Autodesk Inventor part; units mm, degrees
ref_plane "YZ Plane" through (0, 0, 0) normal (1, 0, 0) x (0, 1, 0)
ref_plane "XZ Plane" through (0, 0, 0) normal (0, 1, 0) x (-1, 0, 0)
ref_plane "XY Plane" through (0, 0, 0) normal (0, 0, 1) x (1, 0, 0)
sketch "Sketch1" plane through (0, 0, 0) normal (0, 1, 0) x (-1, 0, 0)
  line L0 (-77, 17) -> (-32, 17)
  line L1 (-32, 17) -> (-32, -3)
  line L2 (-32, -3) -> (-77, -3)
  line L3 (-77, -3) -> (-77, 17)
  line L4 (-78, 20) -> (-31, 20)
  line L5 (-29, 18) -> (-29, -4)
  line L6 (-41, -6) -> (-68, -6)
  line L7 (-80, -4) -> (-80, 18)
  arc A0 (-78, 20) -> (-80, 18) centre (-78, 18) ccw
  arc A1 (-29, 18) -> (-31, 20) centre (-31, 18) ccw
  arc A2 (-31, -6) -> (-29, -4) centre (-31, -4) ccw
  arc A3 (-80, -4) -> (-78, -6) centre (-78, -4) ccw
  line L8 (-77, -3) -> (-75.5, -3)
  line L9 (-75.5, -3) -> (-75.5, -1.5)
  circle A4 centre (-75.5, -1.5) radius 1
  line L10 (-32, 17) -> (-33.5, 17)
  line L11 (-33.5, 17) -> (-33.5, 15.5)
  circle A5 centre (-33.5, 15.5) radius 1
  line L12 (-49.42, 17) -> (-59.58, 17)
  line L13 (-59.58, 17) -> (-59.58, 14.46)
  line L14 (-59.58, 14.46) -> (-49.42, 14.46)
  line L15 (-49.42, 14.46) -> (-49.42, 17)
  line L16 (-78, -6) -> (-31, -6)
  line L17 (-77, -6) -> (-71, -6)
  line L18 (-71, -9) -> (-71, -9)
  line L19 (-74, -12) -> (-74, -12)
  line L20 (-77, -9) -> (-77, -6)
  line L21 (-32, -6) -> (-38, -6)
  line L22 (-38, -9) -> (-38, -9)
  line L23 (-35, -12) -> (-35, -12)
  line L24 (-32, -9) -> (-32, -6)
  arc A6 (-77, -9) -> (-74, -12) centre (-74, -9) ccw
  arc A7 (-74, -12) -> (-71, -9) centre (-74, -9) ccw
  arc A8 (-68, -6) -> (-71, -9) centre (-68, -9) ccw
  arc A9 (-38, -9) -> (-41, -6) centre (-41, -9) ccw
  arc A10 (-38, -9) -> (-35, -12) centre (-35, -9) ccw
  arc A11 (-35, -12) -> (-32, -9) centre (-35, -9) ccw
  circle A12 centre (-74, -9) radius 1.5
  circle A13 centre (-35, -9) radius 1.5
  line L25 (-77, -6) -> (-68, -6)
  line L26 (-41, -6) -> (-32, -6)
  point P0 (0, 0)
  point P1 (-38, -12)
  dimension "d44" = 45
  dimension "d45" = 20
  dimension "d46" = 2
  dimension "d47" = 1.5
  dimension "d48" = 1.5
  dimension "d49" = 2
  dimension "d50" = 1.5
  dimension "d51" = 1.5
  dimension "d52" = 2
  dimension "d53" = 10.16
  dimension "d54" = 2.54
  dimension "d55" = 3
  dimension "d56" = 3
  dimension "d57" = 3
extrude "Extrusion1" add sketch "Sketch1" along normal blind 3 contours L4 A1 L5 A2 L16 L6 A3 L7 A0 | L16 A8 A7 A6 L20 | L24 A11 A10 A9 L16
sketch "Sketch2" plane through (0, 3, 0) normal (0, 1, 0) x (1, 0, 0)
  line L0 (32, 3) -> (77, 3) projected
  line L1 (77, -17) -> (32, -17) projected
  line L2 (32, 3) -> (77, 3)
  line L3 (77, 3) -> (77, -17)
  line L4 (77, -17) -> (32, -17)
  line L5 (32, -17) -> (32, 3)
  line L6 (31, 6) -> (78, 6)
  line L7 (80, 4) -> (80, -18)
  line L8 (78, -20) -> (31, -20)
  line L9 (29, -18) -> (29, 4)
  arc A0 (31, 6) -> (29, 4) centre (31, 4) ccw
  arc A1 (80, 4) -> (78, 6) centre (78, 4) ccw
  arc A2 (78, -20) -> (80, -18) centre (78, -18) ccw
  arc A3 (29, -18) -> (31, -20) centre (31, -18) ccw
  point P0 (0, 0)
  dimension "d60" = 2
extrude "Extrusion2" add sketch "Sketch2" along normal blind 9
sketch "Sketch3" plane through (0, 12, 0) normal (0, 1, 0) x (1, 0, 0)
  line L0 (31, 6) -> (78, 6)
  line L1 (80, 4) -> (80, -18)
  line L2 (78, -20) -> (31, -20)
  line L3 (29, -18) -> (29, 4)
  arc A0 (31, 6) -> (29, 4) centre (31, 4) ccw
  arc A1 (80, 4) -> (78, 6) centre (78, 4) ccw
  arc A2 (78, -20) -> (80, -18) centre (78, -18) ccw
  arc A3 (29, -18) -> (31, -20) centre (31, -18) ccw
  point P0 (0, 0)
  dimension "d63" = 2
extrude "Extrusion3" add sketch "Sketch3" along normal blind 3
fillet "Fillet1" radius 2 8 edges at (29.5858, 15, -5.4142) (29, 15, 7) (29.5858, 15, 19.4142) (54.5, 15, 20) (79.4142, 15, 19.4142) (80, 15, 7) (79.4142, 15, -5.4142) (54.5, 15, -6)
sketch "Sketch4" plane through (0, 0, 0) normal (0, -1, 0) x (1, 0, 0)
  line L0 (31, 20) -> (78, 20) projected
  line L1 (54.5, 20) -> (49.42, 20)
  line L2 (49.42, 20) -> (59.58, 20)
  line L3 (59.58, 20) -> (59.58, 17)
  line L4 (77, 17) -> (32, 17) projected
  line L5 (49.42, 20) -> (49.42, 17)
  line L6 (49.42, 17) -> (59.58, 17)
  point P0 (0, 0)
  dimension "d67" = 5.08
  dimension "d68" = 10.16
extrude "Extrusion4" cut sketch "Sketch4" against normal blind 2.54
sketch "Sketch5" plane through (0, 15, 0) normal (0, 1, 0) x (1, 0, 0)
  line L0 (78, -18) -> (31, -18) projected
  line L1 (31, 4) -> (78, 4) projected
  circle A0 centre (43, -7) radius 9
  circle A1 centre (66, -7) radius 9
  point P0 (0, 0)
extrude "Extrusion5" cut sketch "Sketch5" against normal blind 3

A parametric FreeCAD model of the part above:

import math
import FreeCAD as App
import Part
import Sketcher

V = App.Vector
Q = App.Units.Quantity


def edges_at(feature, points):
    """Names of the edges that pass closest to the given points."""
    edges = feature.Shape.Edges
    near = lambda p: min(range(len(edges)), key=lambda i: edges[i].distToShape(Part.Vertex(*p))[0])
    return sorted({f"Edge{near(p) + 1}" for p in points})

doc = App.newDocument("Part")
body = doc.addObject("PartDesign::Body", "Body")

sketch1 = doc.addObject("Sketcher::SketchObject", "Sketch")
body.addObject(sketch1)
sketch1.AttachmentSupport = (doc.XZ_Plane, [""])
sketch1.MapMode = "FlatFace"
sketch1.addGeometry([
    Part.LineSegment(V(31, 20, 0), V(78, 20, 0)),
    Part.ArcOfCircle(Part.Circle(V(78, 18, 0), V(0, 0, 1), 2), math.radians(0), math.radians(90)),
    Part.LineSegment(V(80, 18, 0), V(80, -4, 0)),
    Part.ArcOfCircle(Part.Circle(V(78, -4, 0), V(0, 0, 1), 2), math.radians(-90), math.radians(0)),
    Part.LineSegment(V(78, -6, 0), V(77, -6, 0)),
    Part.LineSegment(V(77, -6, 0), V(77, -9, 0)),
    Part.ArcOfCircle(Part.Circle(V(74, -9, 0), V(0, 0, 1), 3), math.radians(180), math.radians(360)),
    Part.ArcOfCircle(Part.Circle(V(68, -9, 0), V(0, 0, 1), 3), math.radians(0), math.radians(90)),
    Part.LineSegment(V(68, -6, 0), V(41, -6, 0)),
    Part.ArcOfCircle(Part.Circle(V(41, -9, 0), V(0, 0, 1), 3), math.radians(90), math.radians(180)),
    Part.ArcOfCircle(Part.Circle(V(35, -9, 0), V(0, 0, 1), 3), math.radians(180), math.radians(360)),
    Part.LineSegment(V(32, -9, 0), V(32, -6, 0)),
    Part.LineSegment(V(32, -6, 0), V(31, -6, 0)),
    Part.ArcOfCircle(Part.Circle(V(31, -4, 0), V(0, 0, 1), 2), math.radians(180), math.radians(270)),
    Part.LineSegment(V(29, -4, 0), V(29, 18, 0)),
    Part.ArcOfCircle(Part.Circle(V(31, 18, 0), V(0, 0, 1), 2), math.radians(90), math.radians(180)),
    Part.LineSegment(V(77, -3, 0), V(77, 17, 0)),
    Part.LineSegment(V(77, 17, 0), V(32, 17, 0)),
    Part.LineSegment(V(32, 17, 0), V(32, -3, 0)),
    Part.LineSegment(V(32, -3, 0), V(77, -3, 0)),
    Part.Circle(V(35, -9, 0), V(0, 0, 1), 1.5),
    Part.Circle(V(74, -9, 0), V(0, 0, 1), 1.5),
], False)
sketch1.addConstraint([
    Sketcher.Constraint("Tangent", 0, 2, 1, 2),
    Sketcher.Constraint("Tangent", 1, 1, 2, 1),
    Sketcher.Constraint("Tangent", 2, 2, 3, 2),
    Sketcher.Constraint("Tangent", 3, 1, 4, 1),
    Sketcher.Constraint("Coincident", 4, 2, 5, 1),
    Sketcher.Constraint("Tangent", 5, 2, 6, 2),
    Sketcher.Constraint("Tangent", 6, 1, 7, 1),
    Sketcher.Constraint("Tangent", 7, 2, 8, 1),
    Sketcher.Constraint("Tangent", 8, 2, 9, 1),
    Sketcher.Constraint("Tangent", 9, 2, 10, 2),
    Sketcher.Constraint("Tangent", 10, 1, 11, 1),
    Sketcher.Constraint("Coincident", 11, 2, 12, 1),
    Sketcher.Constraint("Tangent", 12, 2, 13, 2),
    Sketcher.Constraint("Tangent", 13, 1, 14, 1),
    Sketcher.Constraint("Tangent", 14, 2, 15, 2),
    Sketcher.Constraint("Tangent", 15, 1, 0, 1),
    Sketcher.Constraint("Coincident", 16, 2, 17, 1),
    Sketcher.Constraint("Coincident", 17, 2, 18, 1),
    Sketcher.Constraint("Coincident", 18, 2, 19, 1),
    Sketcher.Constraint("Coincident", 19, 2, 16, 1),
    Sketcher.Constraint("Horizontal", 0),
    Sketcher.Constraint("Vertical", 2),
    Sketcher.Constraint("Horizontal", 4),
    Sketcher.Constraint("Vertical", 5),
    Sketcher.Constraint("Horizontal", 8),
    Sketcher.Constraint("Vertical", 11),
    Sketcher.Constraint("Horizontal", 12),
    Sketcher.Constraint("Vertical", 14),
    Sketcher.Constraint("Vertical", 16),
    Sketcher.Constraint("Horizontal", 17),
    Sketcher.Constraint("Vertical", 18),
    Sketcher.Constraint("Horizontal", 19),
    Sketcher.Constraint("Coincident", 20, 3, 10, 3),
    Sketcher.Constraint("Coincident", 21, 3, 6, 3),
    Sketcher.Constraint("Equal", 1, 3),
    Sketcher.Constraint("Equal", 6, 7),
    Sketcher.Constraint("Equal", 7, 9),
    Sketcher.Constraint("Equal", 9, 10),
    Sketcher.Constraint("Equal", 3, 13),
    Sketcher.Constraint("Equal", 13, 15),
    Sketcher.Constraint("Equal", 20, 21),
    Sketcher.Constraint("Horizontal", 6, 3, 7, 3),
    Sketcher.Constraint("Horizontal", 9, 3, 10, 3),
    Sketcher.Constraint("Horizontal", 3, 3, 13, 3),
    Sketcher.Constraint("Horizontal", 4, 2, 7, 2),
    Sketcher.Constraint("Vertical", 5, 2, 16, 2),
    Sketcher.Constraint("Vertical", 11, 2, 17, 2),
    Sketcher.Constraint("Equal", 4, 12),
    Sketcher.Constraint("Diameter", 20, Q("3 mm")),
    Sketcher.Constraint("Radius", 1, Q("2 mm")),
    Sketcher.Constraint("Radius", 6, Q("3 mm")),
    Sketcher.Constraint("DistanceX", 17, 2, 17, 1, Q("45 mm")),
    Sketcher.Constraint("DistanceY", 16, 1, 16, 2, Q("20 mm")),
    Sketcher.Constraint("DistanceY", -1, 1, 0, 2, Q("20 mm")),
    Sketcher.Constraint("DistanceY", 18, 2, -1, 1, Q("3 mm")),
    Sketcher.Constraint("DistanceX", 4, 2, 2, 2, Q("3 mm")),
    Sketcher.Constraint("DistanceY", 11, 2, 18, 2, Q("3 mm")),
    Sketcher.Constraint("DistanceX", -1, 1, 1, 3, Q("78 mm")),
])
pad1 = doc.addObject("PartDesign::Pad", "Pad")
body.addObject(pad1)
pad1.Profile = sketch1
pad1.Length = 3
pad1.Reversed = True

sketch2 = doc.addObject("Sketcher::SketchObject", "Sketch001")
body.addObject(sketch2)
sketch2.AttachmentSupport = (doc.XZ_Plane, [""])
sketch2.MapMode = "FlatFace"
sketch2.AttachmentOffset = App.Placement(V(0, 0, -3), App.Rotation())
sketch2.addGeometry([
    Part.LineSegment(V(78, -6, 0), V(31, -6, 0)),
    Part.ArcOfCircle(Part.Circle(V(31, -4, 0), V(0, 0, 1), 2), math.radians(180), math.radians(270)),
    Part.LineSegment(V(29, -4, 0), V(29, 18, 0)),
    Part.ArcOfCircle(Part.Circle(V(31, 18, 0), V(0, 0, 1), 2), math.radians(90), math.radians(180)),
    Part.LineSegment(V(31, 20, 0), V(78, 20, 0)),
    Part.ArcOfCircle(Part.Circle(V(78, 18, 0), V(0, 0, 1), 2), math.radians(0), math.radians(90)),
    Part.LineSegment(V(80, 18, 0), V(80, -4, 0)),
    Part.ArcOfCircle(Part.Circle(V(78, -4, 0), V(0, 0, 1), 2), math.radians(-90), math.radians(0)),
    Part.LineSegment(V(32, 17, 0), V(32, -3, 0)),
    Part.LineSegment(V(32, -3, 0), V(77, -3, 0)),
    Part.LineSegment(V(77, -3, 0), V(77, 17, 0)),
    Part.LineSegment(V(77, 17, 0), V(32, 17, 0)),
], False)
sketch2.addConstraint([
    Sketcher.Constraint("Tangent", 0, 2, 1, 2),
    Sketcher.Constraint("Tangent", 1, 1, 2, 1),
    Sketcher.Constraint("Tangent", 2, 2, 3, 2),
    Sketcher.Constraint("Tangent", 3, 1, 4, 1),
    Sketcher.Constraint("Tangent", 4, 2, 5, 2),
    Sketcher.Constraint("Tangent", 5, 1, 6, 1),
    Sketcher.Constraint("Tangent", 6, 2, 7, 2),
    Sketcher.Constraint("Tangent", 7, 1, 0, 1),
    Sketcher.Constraint("Coincident", 8, 2, 9, 1),
    Sketcher.Constraint("Coincident", 9, 2, 10, 1),
    Sketcher.Constraint("Coincident", 10, 2, 11, 1),
    Sketcher.Constraint("Coincident", 11, 2, 8, 1),
    Sketcher.Constraint("Horizontal", 0),
    Sketcher.Constraint("Vertical", 2),
    Sketcher.Constraint("Horizontal", 4),
    Sketcher.Constraint("Vertical", 6),
    Sketcher.Constraint("Vertical", 8),
    Sketcher.Constraint("Horizontal", 9),
    Sketcher.Constraint("Vertical", 10),
    Sketcher.Constraint("Horizontal", 11),
    Sketcher.Constraint("Equal", 1, 3),
    Sketcher.Constraint("Equal", 3, 5),
    Sketcher.Constraint("Equal", 5, 7),
    Sketcher.Constraint("Radius", 1, Q("2 mm")),
    Sketcher.Constraint("DistanceX", 0, 2, 0, 1, Q("47 mm")),
    Sketcher.Constraint("DistanceX", 9, 1, 9, 2, Q("45 mm")),
    Sketcher.Constraint("DistanceY", 2, 1, 2, 2, Q("22 mm")),
    Sketcher.Constraint("DistanceY", 8, 2, 8, 1, Q("20 mm")),
    Sketcher.Constraint("DistanceX", -1, 1, 1, 3, Q("31 mm")),
    Sketcher.Constraint("DistanceY", 1, 3, -1, 1, Q("4 mm")),
    Sketcher.Constraint("DistanceX", -1, 1, 8, 2, Q("32 mm")),
    Sketcher.Constraint("DistanceY", 8, 2, -1, 1, Q("3 mm")),
])
pad2 = doc.addObject("PartDesign::Pad", "Pad001")
body.addObject(pad2)
pad2.Profile = sketch2
pad2.Length = 9
pad2.Reversed = True

sketch3 = doc.addObject("Sketcher::SketchObject", "Sketch002")
body.addObject(sketch3)
sketch3.AttachmentSupport = (doc.XZ_Plane, [""])
sketch3.MapMode = "FlatFace"
sketch3.AttachmentOffset = App.Placement(V(0, 0, -12), App.Rotation())
sketch3.addGeometry([
    Part.LineSegment(V(78, -6, 0), V(31, -6, 0)),
    Part.ArcOfCircle(Part.Circle(V(31, -4, 0), V(0, 0, 1), 2), math.radians(180), math.radians(270)),
    Part.LineSegment(V(29, -4, 0), V(29, 18, 0)),
    Part.ArcOfCircle(Part.Circle(V(31, 18, 0), V(0, 0, 1), 2), math.radians(90), math.radians(180)),
    Part.LineSegment(V(31, 20, 0), V(78, 20, 0)),
    Part.ArcOfCircle(Part.Circle(V(78, 18, 0), V(0, 0, 1), 2), math.radians(0), math.radians(90)),
    Part.LineSegment(V(80, 18, 0), V(80, -4, 0)),
    Part.ArcOfCircle(Part.Circle(V(78, -4, 0), V(0, 0, 1), 2), math.radians(-90), math.radians(0)),
], False)
sketch3.addConstraint([
    Sketcher.Constraint("Tangent", 0, 2, 1, 2),
    Sketcher.Constraint("Tangent", 1, 1, 2, 1),
    Sketcher.Constraint("Tangent", 2, 2, 3, 2),
    Sketcher.Constraint("Tangent", 3, 1, 4, 1),
    Sketcher.Constraint("Tangent", 4, 2, 5, 2),
    Sketcher.Constraint("Tangent", 5, 1, 6, 1),
    Sketcher.Constraint("Tangent", 6, 2, 7, 2),
    Sketcher.Constraint("Tangent", 7, 1, 0, 1),
    Sketcher.Constraint("Horizontal", 0),
    Sketcher.Constraint("Vertical", 2),
    Sketcher.Constraint("Horizontal", 4),
    Sketcher.Constraint("Vertical", 6),
    Sketcher.Constraint("Equal", 1, 3),
    Sketcher.Constraint("Equal", 3, 5),
    Sketcher.Constraint("Equal", 5, 7),
    Sketcher.Constraint("Radius", 1, Q("2 mm")),
    Sketcher.Constraint("DistanceX", 0, 2, 0, 1, Q("47 mm")),
    Sketcher.Constraint("DistanceY", 2, 1, 2, 2, Q("22 mm")),
    Sketcher.Constraint("DistanceX", -1, 1, 1, 3, Q("31 mm")),
    Sketcher.Constraint("DistanceY", 1, 3, -1, 1, Q("4 mm")),
])
pad3 = doc.addObject("PartDesign::Pad", "Pad002")
body.addObject(pad3)
pad3.Profile = sketch3
pad3.Length = 3
pad3.Reversed = True
doc.recompute()

fillet = doc.addObject("PartDesign::Fillet", "Fillet")
body.addObject(fillet)
fillet.Base = (pad3, edges_at(pad3, [
    (29.586, 15, -5.414),
    (29, 15, 7),
    (29.586, 15, 19.414),
    (54.5, 15, 20),
    (79.414, 15, 19.414),
    (80, 15, 7),
    (79.414, 15, -5.414),
    (54.5, 15, -6),
]))
fillet.Radius = 2

sketch4 = doc.addObject("Sketcher::SketchObject", "Sketch003")
body.addObject(sketch4)
sketch4.AttachmentSupport = (doc.XZ_Plane, [""])
sketch4.MapMode = "FlatFace"
sketch4.addGeometry([
    Part.LineSegment(V(59.6, 20, 0), V(49.4, 20, 0)),
    Part.LineSegment(V(49.4, 20, 0), V(49.4, 17, 0)),
    Part.LineSegment(V(49.4, 17, 0), V(59.6, 17, 0)),
    Part.LineSegment(V(59.6, 17, 0), V(59.6, 20, 0)),
], False)
sketch4.addConstraint([
    Sketcher.Constraint("Coincident", 0, 2, 1, 1),
    Sketcher.Constraint("Coincident", 1, 2, 2, 1),
    Sketcher.Constraint("Coincident", 2, 2, 3, 1),
    Sketcher.Constraint("Coincident", 3, 2, 0, 1),
    Sketcher.Constraint("Horizontal", 0),
    Sketcher.Constraint("Vertical", 1),
    Sketcher.Constraint("Horizontal", 2),
    Sketcher.Constraint("Vertical", 3),
    Sketcher.Constraint("DistanceX", 0, 2, 0, 1, Q("10.16 mm")),
    Sketcher.Constraint("DistanceY", 1, 2, 1, 1, Q("3 mm")),
    Sketcher.Constraint("DistanceY", -1, 1, 0, 2, Q("20 mm")),
    Sketcher.Constraint("DistanceX", -1, 1, 0, 2, Q("49.42 mm")),
])
pocket1 = doc.addObject("PartDesign::Pocket", "Pocket")
body.addObject(pocket1)
pocket1.Profile = sketch4
pocket1.Length = 2.54

sketch5 = doc.addObject("Sketcher::SketchObject", "Sketch004")
body.addObject(sketch5)
sketch5.AttachmentSupport = (doc.XZ_Plane, [""])
sketch5.MapMode = "FlatFace"
sketch5.AttachmentOffset = App.Placement(V(0, 0, -15), App.Rotation())
sketch5.addGeometry([
    Part.Circle(V(43, 7, 0), V(0, 0, 1), 9),
    Part.Circle(V(66, 7, 0), V(0, 0, 1), 9),
], False)
sketch5.addConstraint([
    Sketcher.Constraint("Equal", 0, 1),
    Sketcher.Constraint("Horizontal", 0, 3, 1, 3),
    Sketcher.Constraint("Diameter", 0, Q("18 mm")),
    Sketcher.Constraint("DistanceX", -1, 1, 0, 3, Q("43 mm")),
    Sketcher.Constraint("DistanceY", -1, 1, 0, 3, Q("7 mm")),
    Sketcher.Constraint("DistanceX", -1, 1, 1, 3, Q("66 mm")),
])
pocket2 = doc.addObject("PartDesign::Pocket", "Pocket001")
body.addObject(pocket2)
pocket2.Profile = sketch5
pocket2.Length = 3
pocket2.Reversed = True

doc.recompute()
